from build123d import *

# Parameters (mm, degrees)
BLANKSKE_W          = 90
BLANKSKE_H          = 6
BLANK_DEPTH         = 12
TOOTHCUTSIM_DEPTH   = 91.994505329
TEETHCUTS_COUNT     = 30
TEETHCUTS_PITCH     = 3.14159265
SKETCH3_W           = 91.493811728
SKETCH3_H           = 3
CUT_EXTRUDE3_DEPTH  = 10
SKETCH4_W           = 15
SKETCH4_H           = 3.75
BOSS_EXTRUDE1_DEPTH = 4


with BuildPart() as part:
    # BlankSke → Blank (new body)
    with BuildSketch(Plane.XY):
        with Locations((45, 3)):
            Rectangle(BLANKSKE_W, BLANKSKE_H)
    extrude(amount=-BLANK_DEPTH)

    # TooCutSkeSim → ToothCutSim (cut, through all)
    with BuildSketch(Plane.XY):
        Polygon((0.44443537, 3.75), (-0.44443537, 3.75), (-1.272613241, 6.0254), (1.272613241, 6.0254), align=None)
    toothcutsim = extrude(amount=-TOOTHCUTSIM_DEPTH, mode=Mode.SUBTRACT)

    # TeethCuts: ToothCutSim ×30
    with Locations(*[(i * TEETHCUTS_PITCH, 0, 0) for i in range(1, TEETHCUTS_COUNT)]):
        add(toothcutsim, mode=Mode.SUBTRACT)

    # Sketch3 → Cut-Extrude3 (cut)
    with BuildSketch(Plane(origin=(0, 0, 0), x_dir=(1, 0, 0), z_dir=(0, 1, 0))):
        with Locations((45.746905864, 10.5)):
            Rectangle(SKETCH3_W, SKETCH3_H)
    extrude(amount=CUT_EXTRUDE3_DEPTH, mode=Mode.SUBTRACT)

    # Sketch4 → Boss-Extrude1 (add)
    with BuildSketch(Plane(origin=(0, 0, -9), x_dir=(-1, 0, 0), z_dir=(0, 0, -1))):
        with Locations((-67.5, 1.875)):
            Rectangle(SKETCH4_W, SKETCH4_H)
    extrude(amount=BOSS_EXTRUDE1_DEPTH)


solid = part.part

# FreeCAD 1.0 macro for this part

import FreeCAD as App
import Part
import Sketcher
Q = App.Units.Quantity

doc = App.newDocument("Part")
body = doc.addObject("PartDesign::Body", "Body")

# Sketch on XY plane
sketch1 = body.newObject("Sketcher::SketchObject", "Sketch")
sketch1.AttachmentSupport = (doc.getObject("XY_Plane"), [""])
sketch1.MapMode = "FlatFace"
sketch1.addGeometry([
    Part.LineSegment(App.Vector(0, 6, 0), App.Vector(0, 0, 0)),
    Part.LineSegment(App.Vector(0, 0, 0), App.Vector(90, 0, 0)),
    Part.LineSegment(App.Vector(90, 0, 0), App.Vector(90, 6, 0)),
    Part.LineSegment(App.Vector(90, 6, 0), App.Vector(0, 6, 0)),
], False)
sketch1.addConstraint([
    Sketcher.Constraint("Coincident", 0, 2, 1, 1),
    Sketcher.Constraint("Coincident", 1, 2, 2, 1),
    Sketcher.Constraint("Coincident", 2, 2, 3, 1),
    Sketcher.Constraint("Coincident", 3, 2, 0, 1),
    Sketcher.Constraint("Vertical", 0),
    Sketcher.Constraint("Horizontal", 1),
    Sketcher.Constraint("Vertical", 2),
    Sketcher.Constraint("Horizontal", 3),
    Sketcher.Constraint("Coincident", 0, 2, -1, 1),
    Sketcher.Constraint("DistanceX", 1, 1, 1, 2, 90.0),
    Sketcher.Constraint("DistanceY", 0, 2, 0, 1, 6.0),
])
pad1 = body.newObject("PartDesign::Pad", "Pad")
pad1.Profile = sketch1
pad1.Length = 12
pad1.Reversed = True

# Sketch on XY plane
sketch2 = body.newObject("Sketcher::SketchObject", "Sketch001")
sketch2.AttachmentSupport = (doc.getObject("XY_Plane"), [""])
sketch2.MapMode = "FlatFace"
sketch2.addGeometry([
    Part.LineSegment(App.Vector(-0.444435, 3.75, 0), App.Vector(0.444435, 3.75, 0)),
    Part.LineSegment(App.Vector(0.444435, 3.75, 0), App.Vector(1.272613, 6.0254, 0)),
    Part.LineSegment(App.Vector(1.272613, 6.0254, 0), App.Vector(-1.272613, 6.0254, 0)),
    Part.LineSegment(App.Vector(-1.272613, 6.0254, 0), App.Vector(-0.444435, 3.75, 0)),
], False)
sketch2.addConstraint([
    Sketcher.Constraint("Coincident", 0, 2, 1, 1),
    Sketcher.Constraint("Coincident", 1, 2, 2, 1),
    Sketcher.Constraint("Coincident", 2, 2, 3, 1),
    Sketcher.Constraint("Coincident", 3, 2, 0, 1),
    Sketcher.Constraint("Horizontal", 0),
    Sketcher.Constraint("Horizontal", 2),
    Sketcher.Constraint("Equal", 1, 3),
    Sketcher.Constraint("Angle", 1, Q("70 deg")),
    Sketcher.Constraint("DistanceY", -1, 1, 0, 2, 3.75),
    Sketcher.Constraint("DistanceX", 0, 1, 0, 2, 0.888871),
    Sketcher.Constraint("DistanceY", -1, 1, 1, 2, 6.0254),
    Sketcher.Constraint("DistanceX", -1, 1, 0, 2, 0.444435),
])
pocket1 = body.newObject("PartDesign::Pocket", "Pocket")
pocket1.Profile = sketch2
pocket1.Type = "ThroughAll"
doc.recompute()

linearpattern = body.newObject("PartDesign::LinearPattern", "LinearPattern")
linearpattern.Originals = [pocket1]
linearpattern.Direction = (doc.getObject("X_Axis"), [""])
linearpattern.Mode = "offset"
linearpattern.Offset = 3.141593
linearpattern.Occurrences = 30
body.Tip = linearpattern

# Sketch on XZ plane
sketch3 = body.newObject("Sketcher::SketchObject", "Sketch002")
sketch3.AttachmentSupport = (doc.getObject("XZ_Plane"), [""])
sketch3.MapMode = "FlatFace"
sketch3.addGeometry([
    Part.LineSegment(App.Vector(0, -12, 0), App.Vector(0, -9, 0)),
    Part.LineSegment(App.Vector(0, -9, 0), App.Vector(91.493812, -9, 0)),
    Part.LineSegment(App.Vector(91.493812, -9, 0), App.Vector(91.493812, -12, 0)),
    Part.LineSegment(App.Vector(91.493812, -12, 0), App.Vector(0, -12, 0)),
], False)
sketch3.addConstraint([
    Sketcher.Constraint("Coincident", 0, 2, 1, 1),
    Sketcher.Constraint("Coincident", 1, 2, 2, 1),
    Sketcher.Constraint("Coincident", 2, 2, 3, 1),
    Sketcher.Constraint("Coincident", 3, 2, 0, 1),
    Sketcher.Constraint("Vertical", 0),
    Sketcher.Constraint("Horizontal", 1),
    Sketcher.Constraint("Vertical", 2),
    Sketcher.Constraint("Horizontal", 3),
    Sketcher.Constraint("PointOnObject", 0, 2, -2),
    Sketcher.Constraint("DistanceY", 0, 1, 0, 2, 3.0),
    Sketcher.Constraint("DistanceY", 0, 2, -1, 1, 9.0),
    Sketcher.Constraint("DistanceX", 1, 1, 1, 2, 91.493812),
])
pocket2 = body.newObject("PartDesign::Pocket", "Pocket001")
pocket2.Profile = sketch3
pocket2.Length = 10

# Sketch on XY plane
sketch4 = body.newObject("Sketcher::SketchObject", "Sketch003")
sketch4.AttachmentSupport = (doc.getObject("XY_Plane"), [""])
sketch4.MapMode = "FlatFace"
sketch4.AttachmentOffset = App.Placement(App.Vector(0, 0, -9), App.Rotation())
sketch4.addGeometry([
    Part.LineSegment(App.Vector(75, 3.75, 0), App.Vector(75, 0, 0)),
    Part.LineSegment(App.Vector(75, 0, 0), App.Vector(60, 0, 0)),
    Part.LineSegment(App.Vector(60, 0, 0), App.Vector(60, 3.75, 0)),
    Part.LineSegment(App.Vector(60, 3.75, 0), App.Vector(75, 3.75, 0)),
], False)
sketch4.addConstraint([
    Sketcher.Constraint("Coincident", 0, 2, 1, 1),
    Sketcher.Constraint("Coincident", 1, 2, 2, 1),
    Sketcher.Constraint("Coincident", 2, 2, 3, 1),
    Sketcher.Constraint("Coincident", 3, 2, 0, 1),
    Sketcher.Constraint("Vertical", 0),
    Sketcher.Constraint("Horizontal", 1),
    Sketcher.Constraint("Vertical", 2),
    Sketcher.Constraint("Horizontal", 3),
    Sketcher.Constraint("PointOnObject", 0, 2, -1),
    Sketcher.Constraint("DistanceX", 1, 2, 1, 1, 15.0),
    Sketcher.Constraint("DistanceX", -1, 1, 0, 2, 75.0),
    Sketcher.Constraint("DistanceY", 0, 2, 0, 1, 3.75),
])
pad2 = body.newObject("PartDesign::Pad", "Pad001")
pad2.Profile = sketch4
pad2.Length = 4
pad2.Reversed = True

doc.recompute()
